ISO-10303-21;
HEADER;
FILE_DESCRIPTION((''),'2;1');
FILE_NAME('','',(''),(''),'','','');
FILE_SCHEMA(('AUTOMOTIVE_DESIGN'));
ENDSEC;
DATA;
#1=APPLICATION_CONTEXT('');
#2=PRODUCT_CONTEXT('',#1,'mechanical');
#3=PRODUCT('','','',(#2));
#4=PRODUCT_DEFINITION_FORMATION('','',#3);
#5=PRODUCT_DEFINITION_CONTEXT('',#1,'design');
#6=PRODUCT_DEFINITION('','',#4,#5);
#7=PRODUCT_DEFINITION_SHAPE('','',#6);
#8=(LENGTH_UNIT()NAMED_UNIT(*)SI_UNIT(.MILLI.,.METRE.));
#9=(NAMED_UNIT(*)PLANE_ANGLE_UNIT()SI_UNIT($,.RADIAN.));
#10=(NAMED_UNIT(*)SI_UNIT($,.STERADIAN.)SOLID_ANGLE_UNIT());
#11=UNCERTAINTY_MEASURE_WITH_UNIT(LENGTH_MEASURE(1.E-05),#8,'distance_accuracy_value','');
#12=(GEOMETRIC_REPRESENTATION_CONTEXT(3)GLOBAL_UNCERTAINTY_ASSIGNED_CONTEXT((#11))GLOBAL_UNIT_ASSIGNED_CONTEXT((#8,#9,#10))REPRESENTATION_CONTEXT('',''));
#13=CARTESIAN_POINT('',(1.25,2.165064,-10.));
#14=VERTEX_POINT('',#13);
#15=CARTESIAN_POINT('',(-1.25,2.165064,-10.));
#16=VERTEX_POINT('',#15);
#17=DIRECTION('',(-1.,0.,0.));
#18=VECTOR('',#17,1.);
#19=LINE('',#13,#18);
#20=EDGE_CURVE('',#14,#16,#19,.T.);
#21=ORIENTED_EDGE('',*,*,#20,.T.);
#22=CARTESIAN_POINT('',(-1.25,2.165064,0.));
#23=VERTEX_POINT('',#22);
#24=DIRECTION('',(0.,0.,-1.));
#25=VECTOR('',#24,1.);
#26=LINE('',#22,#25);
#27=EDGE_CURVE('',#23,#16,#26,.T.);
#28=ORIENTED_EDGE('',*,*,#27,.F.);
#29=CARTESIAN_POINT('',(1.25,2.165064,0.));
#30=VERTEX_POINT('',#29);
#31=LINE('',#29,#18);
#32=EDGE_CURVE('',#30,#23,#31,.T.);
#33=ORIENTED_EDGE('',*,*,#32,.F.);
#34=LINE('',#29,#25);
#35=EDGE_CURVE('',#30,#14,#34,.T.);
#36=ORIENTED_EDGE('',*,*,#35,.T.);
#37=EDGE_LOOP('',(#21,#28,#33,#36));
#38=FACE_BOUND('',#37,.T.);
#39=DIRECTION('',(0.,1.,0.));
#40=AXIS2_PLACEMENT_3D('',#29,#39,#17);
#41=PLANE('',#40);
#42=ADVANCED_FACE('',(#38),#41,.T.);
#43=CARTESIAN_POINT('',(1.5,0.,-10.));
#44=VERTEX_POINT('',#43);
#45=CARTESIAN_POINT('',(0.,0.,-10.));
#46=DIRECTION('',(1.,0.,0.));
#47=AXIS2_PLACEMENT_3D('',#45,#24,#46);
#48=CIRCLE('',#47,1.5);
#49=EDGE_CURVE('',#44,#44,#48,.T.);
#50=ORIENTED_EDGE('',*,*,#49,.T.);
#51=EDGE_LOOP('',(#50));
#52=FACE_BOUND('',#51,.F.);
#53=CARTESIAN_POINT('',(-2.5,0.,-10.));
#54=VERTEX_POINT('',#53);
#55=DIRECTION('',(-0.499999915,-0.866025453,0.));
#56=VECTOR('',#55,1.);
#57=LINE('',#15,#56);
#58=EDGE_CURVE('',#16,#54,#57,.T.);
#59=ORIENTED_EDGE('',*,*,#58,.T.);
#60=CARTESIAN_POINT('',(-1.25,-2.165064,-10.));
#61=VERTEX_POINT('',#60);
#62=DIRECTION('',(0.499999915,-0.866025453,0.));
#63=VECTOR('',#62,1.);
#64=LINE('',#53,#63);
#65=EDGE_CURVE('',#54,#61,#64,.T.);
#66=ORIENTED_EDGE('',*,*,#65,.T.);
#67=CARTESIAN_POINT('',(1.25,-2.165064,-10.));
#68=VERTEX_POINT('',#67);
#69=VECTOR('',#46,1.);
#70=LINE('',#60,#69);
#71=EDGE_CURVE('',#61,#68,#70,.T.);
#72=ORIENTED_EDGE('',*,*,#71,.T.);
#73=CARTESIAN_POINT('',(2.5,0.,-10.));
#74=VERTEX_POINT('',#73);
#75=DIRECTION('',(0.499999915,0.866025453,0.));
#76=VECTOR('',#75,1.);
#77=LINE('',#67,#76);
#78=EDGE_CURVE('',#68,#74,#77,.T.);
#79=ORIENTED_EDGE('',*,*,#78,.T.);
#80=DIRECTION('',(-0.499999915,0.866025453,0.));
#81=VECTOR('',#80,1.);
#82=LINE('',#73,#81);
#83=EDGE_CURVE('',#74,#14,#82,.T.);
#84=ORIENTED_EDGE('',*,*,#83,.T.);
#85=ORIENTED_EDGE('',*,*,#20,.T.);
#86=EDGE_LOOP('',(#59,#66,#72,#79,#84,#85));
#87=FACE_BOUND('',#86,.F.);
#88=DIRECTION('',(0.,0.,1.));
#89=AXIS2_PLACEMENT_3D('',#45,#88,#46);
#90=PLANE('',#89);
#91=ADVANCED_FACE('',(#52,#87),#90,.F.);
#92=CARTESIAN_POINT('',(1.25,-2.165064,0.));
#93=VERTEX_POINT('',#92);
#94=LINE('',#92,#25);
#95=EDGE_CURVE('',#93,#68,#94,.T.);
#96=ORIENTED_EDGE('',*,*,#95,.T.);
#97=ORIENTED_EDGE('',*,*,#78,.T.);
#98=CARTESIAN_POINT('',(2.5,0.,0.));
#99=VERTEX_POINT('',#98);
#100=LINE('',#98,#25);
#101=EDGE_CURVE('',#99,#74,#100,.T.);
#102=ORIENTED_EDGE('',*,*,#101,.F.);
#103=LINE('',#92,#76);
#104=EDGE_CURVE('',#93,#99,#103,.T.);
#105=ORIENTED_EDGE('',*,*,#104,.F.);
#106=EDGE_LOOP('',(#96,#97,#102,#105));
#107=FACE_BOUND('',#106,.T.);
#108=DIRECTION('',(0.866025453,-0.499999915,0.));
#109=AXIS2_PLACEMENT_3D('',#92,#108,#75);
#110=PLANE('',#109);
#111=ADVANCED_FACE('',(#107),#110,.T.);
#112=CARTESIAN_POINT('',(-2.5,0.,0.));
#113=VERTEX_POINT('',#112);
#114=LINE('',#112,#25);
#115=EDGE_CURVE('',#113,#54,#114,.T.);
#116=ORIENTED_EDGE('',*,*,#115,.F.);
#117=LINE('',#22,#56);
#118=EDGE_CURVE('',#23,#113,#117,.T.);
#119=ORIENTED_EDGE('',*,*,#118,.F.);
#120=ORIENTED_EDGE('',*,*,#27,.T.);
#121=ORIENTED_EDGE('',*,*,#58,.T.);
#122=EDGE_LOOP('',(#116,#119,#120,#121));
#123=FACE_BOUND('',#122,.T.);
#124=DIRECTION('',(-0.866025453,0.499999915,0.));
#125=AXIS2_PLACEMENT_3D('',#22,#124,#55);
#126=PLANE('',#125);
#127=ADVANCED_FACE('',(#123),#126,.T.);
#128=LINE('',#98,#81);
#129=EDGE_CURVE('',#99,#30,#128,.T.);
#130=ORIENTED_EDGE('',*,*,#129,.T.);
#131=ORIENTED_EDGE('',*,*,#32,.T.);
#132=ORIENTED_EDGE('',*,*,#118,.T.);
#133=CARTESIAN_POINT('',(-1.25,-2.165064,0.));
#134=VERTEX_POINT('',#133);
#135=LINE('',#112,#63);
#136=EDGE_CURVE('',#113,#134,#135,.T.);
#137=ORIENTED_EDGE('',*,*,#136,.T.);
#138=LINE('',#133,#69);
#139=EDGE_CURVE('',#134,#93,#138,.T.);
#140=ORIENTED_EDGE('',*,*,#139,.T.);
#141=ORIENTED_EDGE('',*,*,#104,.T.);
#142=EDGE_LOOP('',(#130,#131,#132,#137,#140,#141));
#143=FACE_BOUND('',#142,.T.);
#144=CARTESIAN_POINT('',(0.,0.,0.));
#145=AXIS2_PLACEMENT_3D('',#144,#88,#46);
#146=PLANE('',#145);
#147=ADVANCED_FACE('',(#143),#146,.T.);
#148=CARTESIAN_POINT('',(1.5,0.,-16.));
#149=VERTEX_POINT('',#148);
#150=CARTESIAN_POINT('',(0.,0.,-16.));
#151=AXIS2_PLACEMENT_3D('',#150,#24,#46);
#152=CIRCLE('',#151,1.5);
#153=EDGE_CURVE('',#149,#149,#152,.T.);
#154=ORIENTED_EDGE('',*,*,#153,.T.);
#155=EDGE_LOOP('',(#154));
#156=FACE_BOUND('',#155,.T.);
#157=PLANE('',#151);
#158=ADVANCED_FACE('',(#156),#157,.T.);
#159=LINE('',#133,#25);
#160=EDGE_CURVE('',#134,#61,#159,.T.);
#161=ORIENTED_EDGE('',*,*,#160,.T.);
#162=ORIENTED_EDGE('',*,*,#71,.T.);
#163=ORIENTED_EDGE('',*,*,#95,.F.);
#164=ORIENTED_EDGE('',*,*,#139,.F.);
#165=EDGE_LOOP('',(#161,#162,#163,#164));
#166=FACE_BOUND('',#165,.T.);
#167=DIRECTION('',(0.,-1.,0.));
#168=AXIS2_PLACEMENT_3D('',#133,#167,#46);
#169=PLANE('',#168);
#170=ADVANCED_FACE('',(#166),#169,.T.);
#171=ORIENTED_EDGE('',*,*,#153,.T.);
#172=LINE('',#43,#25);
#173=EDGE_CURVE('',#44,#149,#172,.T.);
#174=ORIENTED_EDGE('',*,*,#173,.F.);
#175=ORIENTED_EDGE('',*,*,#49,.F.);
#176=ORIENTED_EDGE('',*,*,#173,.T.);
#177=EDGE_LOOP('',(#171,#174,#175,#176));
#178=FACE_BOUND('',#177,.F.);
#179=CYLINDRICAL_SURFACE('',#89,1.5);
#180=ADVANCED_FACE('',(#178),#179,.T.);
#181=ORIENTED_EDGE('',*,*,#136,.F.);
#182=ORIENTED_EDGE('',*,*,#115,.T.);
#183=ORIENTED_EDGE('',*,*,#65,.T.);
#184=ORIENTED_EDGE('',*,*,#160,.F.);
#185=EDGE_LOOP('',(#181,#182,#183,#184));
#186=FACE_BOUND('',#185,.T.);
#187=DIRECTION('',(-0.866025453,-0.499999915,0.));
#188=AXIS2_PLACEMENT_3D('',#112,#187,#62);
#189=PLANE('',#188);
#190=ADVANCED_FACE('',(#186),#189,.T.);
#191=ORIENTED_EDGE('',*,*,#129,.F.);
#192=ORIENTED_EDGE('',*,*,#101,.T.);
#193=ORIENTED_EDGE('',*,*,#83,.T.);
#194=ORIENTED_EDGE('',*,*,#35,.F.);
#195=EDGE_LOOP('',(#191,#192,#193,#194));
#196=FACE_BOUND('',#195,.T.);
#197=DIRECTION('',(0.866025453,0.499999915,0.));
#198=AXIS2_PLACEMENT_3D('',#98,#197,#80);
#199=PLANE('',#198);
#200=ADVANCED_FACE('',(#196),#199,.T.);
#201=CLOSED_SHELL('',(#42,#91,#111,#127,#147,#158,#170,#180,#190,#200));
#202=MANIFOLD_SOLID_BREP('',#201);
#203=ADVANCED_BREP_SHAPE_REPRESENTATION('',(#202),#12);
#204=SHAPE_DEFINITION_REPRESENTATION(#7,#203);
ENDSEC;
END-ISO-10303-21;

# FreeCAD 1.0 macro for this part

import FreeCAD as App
import Part
import Sketcher
from FreeCAD import Vector
Q = App.Units.Quantity


def add_polygon(sketch, points):
    """Adds a closed chain of lines whose ends are joined by coincident constraints."""
    first, n = sketch.GeometryCount, len(points)
    for a, b in zip(points, points[1:] + points[:1]):
        sketch.addGeometry(Part.LineSegment(App.Vector(*a, 0), App.Vector(*b, 0)), False)
    for i in range(n):
        sketch.addConstraint(Sketcher.Constraint("Coincident", first + i, 2, first + (i + 1) % n, 1))

doc = App.newDocument("Part")
body = doc.addObject("PartDesign::Body", "Body")

# Sketch on XY plane
sketch1 = doc.addObject("Sketcher::SketchObject", "Sketch")
body.addObject(sketch1)
sketch1.AttachmentSupport = (doc.XY_Plane, [""])
sketch1.MapMode = "FlatFace"
add_polygon(sketch1, [(2.5, 0), (1.2, 2.2), (-1.2, 2.2), (-2.5, 0), (-1.2, -2.2), (1.2, -2.2)])  # lines 0-5
sketch1.addConstraint([
    Sketcher.Constraint("Horizontal", 1),
    Sketcher.Constraint("Horizontal", 4),
    Sketcher.Constraint("Symmetric", 0, 2, 3, 2, -1, 1),
    Sketcher.Constraint("Symmetric", 2, 2, 5, 2, -1, 1),
    Sketcher.Constraint("PointOnObject", 2, 2, -1),
    Sketcher.Constraint("Parallel", 2, 5),
    Sketcher.Constraint("Vertical", 1, 2, 3, 2),
    Sketcher.Constraint("Angle", 0, Q("119.999994 deg")),
    Sketcher.Constraint("DistanceX", 1, 2, 1, 1, Q("2.5 mm")),
    Sketcher.Constraint("DistanceX", 2, 2, 5, 2, Q("5 mm")),
])
pad1 = doc.addObject("PartDesign::Pad", "Pad")
body.addObject(pad1)
pad1.Profile = sketch1
pad1.Length = 10
pad1.Reversed = True

# Sketch on XY plane
sketch2 = doc.addObject("Sketcher::SketchObject", "Sketch001")
body.addObject(sketch2)
sketch2.AttachmentSupport = (doc.XY_Plane, [""])
sketch2.MapMode = "FlatFace"
sketch2.AttachmentOffset = App.Placement(Vector(0, 0, -10), App.Rotation())
sketch2.addGeometry(Part.Circle(Vector(0, 0, 0), Vector(0, 0, 1), 1.5), False)
sketch2.addConstraint([
    Sketcher.Constraint("Coincident", 0, 3, -1, 1),
    Sketcher.Constraint("Diameter", 0, Q("3 mm")),
])
pad2 = doc.addObject("PartDesign::Pad", "Pad001")
body.addObject(pad2)
pad2.Profile = sketch2
pad2.Length = 6
pad2.Reversed = True

doc.recompute()
